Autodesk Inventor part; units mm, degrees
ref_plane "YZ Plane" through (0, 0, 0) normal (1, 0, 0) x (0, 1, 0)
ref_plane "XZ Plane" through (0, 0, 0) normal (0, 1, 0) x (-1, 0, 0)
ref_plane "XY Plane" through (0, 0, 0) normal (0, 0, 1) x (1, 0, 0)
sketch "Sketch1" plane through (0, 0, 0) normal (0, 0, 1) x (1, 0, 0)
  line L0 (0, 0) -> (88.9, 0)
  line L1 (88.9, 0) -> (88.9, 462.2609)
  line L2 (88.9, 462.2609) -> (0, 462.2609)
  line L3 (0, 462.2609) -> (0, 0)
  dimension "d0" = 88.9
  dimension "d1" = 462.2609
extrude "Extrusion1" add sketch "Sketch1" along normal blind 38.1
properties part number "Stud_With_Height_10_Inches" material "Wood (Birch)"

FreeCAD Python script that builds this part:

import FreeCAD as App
import Part
import Sketcher

V = App.Vector
Q = App.Units.Quantity

doc = App.newDocument("Part")
params = doc.addObject("Spreadsheet::Sheet", "Params")
for row, (alias, value) in enumerate([
    ("sketch1_width", "3.5 in"),
    ("pad1_length", "1.5 in"),
], start=1):
    params.set(f"A{row}", alias)
    params.set(f"B{row}", "=" + value)
    params.setAlias(f"B{row}", alias)

body = doc.addObject("PartDesign::Body", "Body")

# Sketch on XY plane
sketch1 = body.newObject("Sketcher::SketchObject", "Sketch")
sketch1.AttachmentSupport = (doc.getObject("XY_Plane"), [""])
sketch1.MapMode = "FlatFace"
sketch1.addGeometry([
    Part.LineSegment(V(0, 462.2609, 0), V(0, 0, 0)),
    Part.LineSegment(V(0, 0, 0), V(88.9, 0, 0)),
    Part.LineSegment(V(88.9, 0, 0), V(88.9, 462.2609, 0)),
    Part.LineSegment(V(88.9, 462.2609, 0), V(0, 462.2609, 0)),
], False)
sketch1.addConstraint([
    Sketcher.Constraint("Coincident", 0, 2, 1, 1),
    Sketcher.Constraint("Coincident", 1, 2, 2, 1),
    Sketcher.Constraint("Coincident", 2, 2, 3, 1),
    Sketcher.Constraint("Coincident", 3, 2, 0, 1),
    Sketcher.Constraint("Vertical", 0),
    Sketcher.Constraint("Horizontal", 1),
    Sketcher.Constraint("Vertical", 2),
    Sketcher.Constraint("Horizontal", 3),
    Sketcher.Constraint("Coincident", 0, 2, -1, 1),
    Sketcher.Constraint("DistanceX", 1, 1, 1, 2, Q("3.5 in")),
    Sketcher.Constraint("DistanceY", 0, 2, 0, 1, 462.261),
])
sketch1.setExpression("Constraints[9]", "Params.sketch1_width")
pad1 = body.newObject("PartDesign::Pad", "Pad")
pad1.Profile = sketch1
pad1.setExpression("Length", "Params.pad1_length")

doc.recompute()
